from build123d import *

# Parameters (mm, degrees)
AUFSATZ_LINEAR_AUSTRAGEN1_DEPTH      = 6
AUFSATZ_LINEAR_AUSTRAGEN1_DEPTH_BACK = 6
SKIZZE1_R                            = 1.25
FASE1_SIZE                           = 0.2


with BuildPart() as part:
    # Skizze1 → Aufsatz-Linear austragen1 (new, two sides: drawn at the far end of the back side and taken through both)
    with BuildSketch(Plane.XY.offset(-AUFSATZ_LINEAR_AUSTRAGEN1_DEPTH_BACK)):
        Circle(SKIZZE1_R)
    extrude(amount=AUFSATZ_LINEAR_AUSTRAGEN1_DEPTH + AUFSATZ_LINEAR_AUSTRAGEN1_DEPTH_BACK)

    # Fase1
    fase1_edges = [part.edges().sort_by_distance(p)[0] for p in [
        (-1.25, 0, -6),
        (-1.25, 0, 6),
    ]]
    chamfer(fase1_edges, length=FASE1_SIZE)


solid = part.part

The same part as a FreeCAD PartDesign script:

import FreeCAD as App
import Part
import Sketcher
Q = App.Units.Quantity


def edges_at(feature, points):
    """Names of the edges that pass closest to the given points."""
    edges = feature.Shape.Edges
    near = lambda p: min(range(len(edges)), key=lambda i: edges[i].distToShape(Part.Vertex(*p))[0])
    return sorted({f"Edge{near(p) + 1}" for p in points})

doc = App.newDocument("Part")
body = doc.addObject("PartDesign::Body", "Body")

# Sketch on XY plane
sketch1 = doc.addObject("Sketcher::SketchObject", "Sketch")
body.addObject(sketch1)
sketch1.AttachmentSupport = (doc.XY_Plane, [""])
sketch1.MapMode = "FlatFace"
sketch1.addGeometry(Part.Circle(App.Vector(0, 0, 0), App.Vector(0, 0, 1), 1.25), False)
sketch1.addConstraint([
    Sketcher.Constraint("Coincident", 0, 3, -1, 1),
    Sketcher.Constraint("Diameter", 0, Q("2.5 mm")),
])
pad1 = doc.addObject("PartDesign::Pad", "Pad")
body.addObject(pad1)
pad1.Profile = sketch1
pad1.Type = "TwoLengths"
pad1.Length = 6
pad1.Length2 = 6
doc.recompute()

chamfer = doc.addObject("PartDesign::Chamfer", "Chamfer")
body.addObject(chamfer)
chamfer.Base = (pad1, edges_at(pad1, [(-1.25, 0, -6), (-1.25, 0, 6)]))
chamfer.Size = 0.2

doc.recompute()
